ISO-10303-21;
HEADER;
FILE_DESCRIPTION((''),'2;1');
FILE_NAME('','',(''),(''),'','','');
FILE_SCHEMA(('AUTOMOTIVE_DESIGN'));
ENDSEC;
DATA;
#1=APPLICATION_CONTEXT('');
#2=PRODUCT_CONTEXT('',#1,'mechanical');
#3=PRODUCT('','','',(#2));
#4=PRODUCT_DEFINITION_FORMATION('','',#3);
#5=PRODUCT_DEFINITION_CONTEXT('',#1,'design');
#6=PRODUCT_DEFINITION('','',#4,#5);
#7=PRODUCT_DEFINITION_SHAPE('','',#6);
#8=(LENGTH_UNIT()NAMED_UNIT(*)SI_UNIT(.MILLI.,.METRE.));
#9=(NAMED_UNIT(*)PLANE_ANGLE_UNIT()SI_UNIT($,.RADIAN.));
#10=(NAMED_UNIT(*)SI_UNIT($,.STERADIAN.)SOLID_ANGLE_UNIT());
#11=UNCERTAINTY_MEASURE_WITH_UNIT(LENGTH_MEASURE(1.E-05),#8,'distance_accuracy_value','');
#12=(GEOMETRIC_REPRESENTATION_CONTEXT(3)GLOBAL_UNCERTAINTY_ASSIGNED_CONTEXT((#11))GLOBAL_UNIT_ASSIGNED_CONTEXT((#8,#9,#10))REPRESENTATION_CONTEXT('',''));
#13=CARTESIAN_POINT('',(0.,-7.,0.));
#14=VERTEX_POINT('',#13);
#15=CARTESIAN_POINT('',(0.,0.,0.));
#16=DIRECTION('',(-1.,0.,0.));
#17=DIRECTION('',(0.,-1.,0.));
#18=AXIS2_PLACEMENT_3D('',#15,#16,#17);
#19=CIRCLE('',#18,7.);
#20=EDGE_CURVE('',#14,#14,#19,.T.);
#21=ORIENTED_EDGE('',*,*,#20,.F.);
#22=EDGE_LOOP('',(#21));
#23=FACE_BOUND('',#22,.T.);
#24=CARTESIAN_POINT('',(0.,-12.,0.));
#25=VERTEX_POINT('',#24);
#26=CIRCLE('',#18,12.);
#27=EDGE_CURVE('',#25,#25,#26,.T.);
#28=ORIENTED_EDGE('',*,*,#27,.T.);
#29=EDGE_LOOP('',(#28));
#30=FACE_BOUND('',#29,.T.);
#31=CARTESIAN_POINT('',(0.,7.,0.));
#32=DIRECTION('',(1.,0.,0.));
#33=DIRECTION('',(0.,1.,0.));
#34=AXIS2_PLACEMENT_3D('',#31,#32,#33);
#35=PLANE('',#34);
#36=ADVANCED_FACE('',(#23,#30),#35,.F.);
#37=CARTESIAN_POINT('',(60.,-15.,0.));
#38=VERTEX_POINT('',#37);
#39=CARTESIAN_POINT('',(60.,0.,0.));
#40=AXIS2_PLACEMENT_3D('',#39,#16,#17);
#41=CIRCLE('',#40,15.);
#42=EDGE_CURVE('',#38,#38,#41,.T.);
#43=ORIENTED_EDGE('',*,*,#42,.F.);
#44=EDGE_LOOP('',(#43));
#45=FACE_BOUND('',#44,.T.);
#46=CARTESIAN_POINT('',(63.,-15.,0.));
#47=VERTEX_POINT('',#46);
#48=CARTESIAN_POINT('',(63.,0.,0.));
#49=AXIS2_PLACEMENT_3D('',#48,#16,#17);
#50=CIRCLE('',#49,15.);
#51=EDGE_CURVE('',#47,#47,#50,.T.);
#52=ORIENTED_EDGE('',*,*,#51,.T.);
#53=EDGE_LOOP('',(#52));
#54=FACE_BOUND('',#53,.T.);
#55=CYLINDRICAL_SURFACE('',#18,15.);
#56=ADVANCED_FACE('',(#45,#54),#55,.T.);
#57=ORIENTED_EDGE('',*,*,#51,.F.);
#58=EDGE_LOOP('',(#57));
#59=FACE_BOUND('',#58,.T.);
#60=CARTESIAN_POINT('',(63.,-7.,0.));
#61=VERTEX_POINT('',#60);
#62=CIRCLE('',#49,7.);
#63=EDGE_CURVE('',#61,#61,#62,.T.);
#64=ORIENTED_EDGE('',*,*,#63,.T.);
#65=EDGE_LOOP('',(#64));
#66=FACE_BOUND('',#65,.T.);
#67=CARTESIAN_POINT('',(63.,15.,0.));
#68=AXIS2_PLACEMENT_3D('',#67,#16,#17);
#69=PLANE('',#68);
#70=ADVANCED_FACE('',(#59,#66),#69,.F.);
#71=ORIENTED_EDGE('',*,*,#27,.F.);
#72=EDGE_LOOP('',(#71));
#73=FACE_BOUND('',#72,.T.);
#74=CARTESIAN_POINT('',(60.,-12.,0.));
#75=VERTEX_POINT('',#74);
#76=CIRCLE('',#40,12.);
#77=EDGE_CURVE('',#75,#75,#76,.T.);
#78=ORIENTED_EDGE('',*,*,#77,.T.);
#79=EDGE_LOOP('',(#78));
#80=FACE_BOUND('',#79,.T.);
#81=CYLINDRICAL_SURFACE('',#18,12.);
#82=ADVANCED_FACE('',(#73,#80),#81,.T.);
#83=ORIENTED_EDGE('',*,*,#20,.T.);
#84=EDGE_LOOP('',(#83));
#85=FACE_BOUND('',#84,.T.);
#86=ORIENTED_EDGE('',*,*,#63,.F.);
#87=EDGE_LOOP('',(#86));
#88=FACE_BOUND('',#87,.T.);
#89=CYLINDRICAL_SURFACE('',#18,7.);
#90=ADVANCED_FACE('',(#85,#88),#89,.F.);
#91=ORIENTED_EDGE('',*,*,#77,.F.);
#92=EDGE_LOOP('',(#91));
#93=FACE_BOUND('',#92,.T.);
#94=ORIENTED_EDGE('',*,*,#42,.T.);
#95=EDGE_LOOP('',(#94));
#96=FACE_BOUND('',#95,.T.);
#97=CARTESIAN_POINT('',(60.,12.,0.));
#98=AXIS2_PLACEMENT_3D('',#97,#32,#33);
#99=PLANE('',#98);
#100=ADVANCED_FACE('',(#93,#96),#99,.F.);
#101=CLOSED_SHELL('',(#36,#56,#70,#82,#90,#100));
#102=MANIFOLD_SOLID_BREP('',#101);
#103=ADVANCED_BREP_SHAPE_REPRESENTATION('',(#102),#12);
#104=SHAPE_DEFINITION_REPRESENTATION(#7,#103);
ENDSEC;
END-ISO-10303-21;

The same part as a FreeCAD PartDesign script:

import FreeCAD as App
import Part
import Sketcher
Q = App.Units.Quantity

doc = App.newDocument("Part")
params = doc.addObject("Spreadsheet::Sheet", "Params")
for row, (alias, value) in enumerate([
    ("sketch1_width", "63 mm"),
    ("sketch1_width2", "3 mm"),
    ("sketch1_height", "5 mm"),
    ("revolution_angle", "360 deg"),
], start=1):
    params.set(f"A{row}", alias)
    params.set(f"B{row}", "=" + value)
    params.setAlias(f"B{row}", alias)

body = doc.addObject("PartDesign::Body", "Body")

# Sketch on XY plane
sketch1 = body.newObject("Sketcher::SketchObject", "Sketch")
sketch1.AttachmentSupport = (doc.getObject("XY_Plane"), [""])
sketch1.MapMode = "FlatFace"
sketch1.addGeometry([
    Part.LineSegment(App.Vector(0, 12, 0), App.Vector(0, 7, 0)),  # 0
    Part.LineSegment(App.Vector(0, 7, 0), App.Vector(63, 7, 0)),  # 1
    Part.LineSegment(App.Vector(63, 7, 0), App.Vector(63, 15, 0)),  # 2
    Part.LineSegment(App.Vector(63, 15, 0), App.Vector(60, 15, 0)),  # 3
    Part.LineSegment(App.Vector(60, 15, 0), App.Vector(60, 12, 0)),  # 4
    Part.LineSegment(App.Vector(60, 12, 0), App.Vector(0, 12, 0)),  # 5
], False)
sketch1.addConstraint([
    Sketcher.Constraint("Coincident", 0, 2, 1, 1),
    Sketcher.Constraint("Coincident", 1, 2, 2, 1),
    Sketcher.Constraint("Coincident", 2, 2, 3, 1),
    Sketcher.Constraint("Coincident", 3, 2, 4, 1),
    Sketcher.Constraint("Coincident", 4, 2, 5, 1),
    Sketcher.Constraint("Coincident", 5, 2, 0, 1),
    Sketcher.Constraint("Vertical", 0),
    Sketcher.Constraint("Horizontal", 1),
    Sketcher.Constraint("Vertical", 2),
    Sketcher.Constraint("Horizontal", 3),
    Sketcher.Constraint("Vertical", 4),
    Sketcher.Constraint("Horizontal", 5),
    Sketcher.Constraint("PointOnObject", 0, 2, -2),
    Sketcher.Constraint("Equal", 3, 4),
    Sketcher.Constraint("DistanceX", 1, 1, 1, 2, Q("63 mm")),
    Sketcher.Constraint("DistanceX", 3, 2, 3, 1, Q("3 mm")),
    Sketcher.Constraint("DistanceY", 0, 2, 0, 1, Q("5 mm")),
    Sketcher.Constraint("DistanceY", -1, 1, 0, 2, Q("7 mm")),
])
sketch1.setExpression("Constraints[14]", "Params.sketch1_width")
sketch1.setExpression("Constraints[15]", "Params.sketch1_width2")
sketch1.setExpression("Constraints[16]", "Params.sketch1_height")
revolution = body.newObject("PartDesign::Revolution", "Revolution")
revolution.Profile = sketch1
revolution.ReferenceAxis = (sketch1, ["H_Axis"])
revolution.setExpression("Angle", "Params.revolution_angle")

doc.recompute()
